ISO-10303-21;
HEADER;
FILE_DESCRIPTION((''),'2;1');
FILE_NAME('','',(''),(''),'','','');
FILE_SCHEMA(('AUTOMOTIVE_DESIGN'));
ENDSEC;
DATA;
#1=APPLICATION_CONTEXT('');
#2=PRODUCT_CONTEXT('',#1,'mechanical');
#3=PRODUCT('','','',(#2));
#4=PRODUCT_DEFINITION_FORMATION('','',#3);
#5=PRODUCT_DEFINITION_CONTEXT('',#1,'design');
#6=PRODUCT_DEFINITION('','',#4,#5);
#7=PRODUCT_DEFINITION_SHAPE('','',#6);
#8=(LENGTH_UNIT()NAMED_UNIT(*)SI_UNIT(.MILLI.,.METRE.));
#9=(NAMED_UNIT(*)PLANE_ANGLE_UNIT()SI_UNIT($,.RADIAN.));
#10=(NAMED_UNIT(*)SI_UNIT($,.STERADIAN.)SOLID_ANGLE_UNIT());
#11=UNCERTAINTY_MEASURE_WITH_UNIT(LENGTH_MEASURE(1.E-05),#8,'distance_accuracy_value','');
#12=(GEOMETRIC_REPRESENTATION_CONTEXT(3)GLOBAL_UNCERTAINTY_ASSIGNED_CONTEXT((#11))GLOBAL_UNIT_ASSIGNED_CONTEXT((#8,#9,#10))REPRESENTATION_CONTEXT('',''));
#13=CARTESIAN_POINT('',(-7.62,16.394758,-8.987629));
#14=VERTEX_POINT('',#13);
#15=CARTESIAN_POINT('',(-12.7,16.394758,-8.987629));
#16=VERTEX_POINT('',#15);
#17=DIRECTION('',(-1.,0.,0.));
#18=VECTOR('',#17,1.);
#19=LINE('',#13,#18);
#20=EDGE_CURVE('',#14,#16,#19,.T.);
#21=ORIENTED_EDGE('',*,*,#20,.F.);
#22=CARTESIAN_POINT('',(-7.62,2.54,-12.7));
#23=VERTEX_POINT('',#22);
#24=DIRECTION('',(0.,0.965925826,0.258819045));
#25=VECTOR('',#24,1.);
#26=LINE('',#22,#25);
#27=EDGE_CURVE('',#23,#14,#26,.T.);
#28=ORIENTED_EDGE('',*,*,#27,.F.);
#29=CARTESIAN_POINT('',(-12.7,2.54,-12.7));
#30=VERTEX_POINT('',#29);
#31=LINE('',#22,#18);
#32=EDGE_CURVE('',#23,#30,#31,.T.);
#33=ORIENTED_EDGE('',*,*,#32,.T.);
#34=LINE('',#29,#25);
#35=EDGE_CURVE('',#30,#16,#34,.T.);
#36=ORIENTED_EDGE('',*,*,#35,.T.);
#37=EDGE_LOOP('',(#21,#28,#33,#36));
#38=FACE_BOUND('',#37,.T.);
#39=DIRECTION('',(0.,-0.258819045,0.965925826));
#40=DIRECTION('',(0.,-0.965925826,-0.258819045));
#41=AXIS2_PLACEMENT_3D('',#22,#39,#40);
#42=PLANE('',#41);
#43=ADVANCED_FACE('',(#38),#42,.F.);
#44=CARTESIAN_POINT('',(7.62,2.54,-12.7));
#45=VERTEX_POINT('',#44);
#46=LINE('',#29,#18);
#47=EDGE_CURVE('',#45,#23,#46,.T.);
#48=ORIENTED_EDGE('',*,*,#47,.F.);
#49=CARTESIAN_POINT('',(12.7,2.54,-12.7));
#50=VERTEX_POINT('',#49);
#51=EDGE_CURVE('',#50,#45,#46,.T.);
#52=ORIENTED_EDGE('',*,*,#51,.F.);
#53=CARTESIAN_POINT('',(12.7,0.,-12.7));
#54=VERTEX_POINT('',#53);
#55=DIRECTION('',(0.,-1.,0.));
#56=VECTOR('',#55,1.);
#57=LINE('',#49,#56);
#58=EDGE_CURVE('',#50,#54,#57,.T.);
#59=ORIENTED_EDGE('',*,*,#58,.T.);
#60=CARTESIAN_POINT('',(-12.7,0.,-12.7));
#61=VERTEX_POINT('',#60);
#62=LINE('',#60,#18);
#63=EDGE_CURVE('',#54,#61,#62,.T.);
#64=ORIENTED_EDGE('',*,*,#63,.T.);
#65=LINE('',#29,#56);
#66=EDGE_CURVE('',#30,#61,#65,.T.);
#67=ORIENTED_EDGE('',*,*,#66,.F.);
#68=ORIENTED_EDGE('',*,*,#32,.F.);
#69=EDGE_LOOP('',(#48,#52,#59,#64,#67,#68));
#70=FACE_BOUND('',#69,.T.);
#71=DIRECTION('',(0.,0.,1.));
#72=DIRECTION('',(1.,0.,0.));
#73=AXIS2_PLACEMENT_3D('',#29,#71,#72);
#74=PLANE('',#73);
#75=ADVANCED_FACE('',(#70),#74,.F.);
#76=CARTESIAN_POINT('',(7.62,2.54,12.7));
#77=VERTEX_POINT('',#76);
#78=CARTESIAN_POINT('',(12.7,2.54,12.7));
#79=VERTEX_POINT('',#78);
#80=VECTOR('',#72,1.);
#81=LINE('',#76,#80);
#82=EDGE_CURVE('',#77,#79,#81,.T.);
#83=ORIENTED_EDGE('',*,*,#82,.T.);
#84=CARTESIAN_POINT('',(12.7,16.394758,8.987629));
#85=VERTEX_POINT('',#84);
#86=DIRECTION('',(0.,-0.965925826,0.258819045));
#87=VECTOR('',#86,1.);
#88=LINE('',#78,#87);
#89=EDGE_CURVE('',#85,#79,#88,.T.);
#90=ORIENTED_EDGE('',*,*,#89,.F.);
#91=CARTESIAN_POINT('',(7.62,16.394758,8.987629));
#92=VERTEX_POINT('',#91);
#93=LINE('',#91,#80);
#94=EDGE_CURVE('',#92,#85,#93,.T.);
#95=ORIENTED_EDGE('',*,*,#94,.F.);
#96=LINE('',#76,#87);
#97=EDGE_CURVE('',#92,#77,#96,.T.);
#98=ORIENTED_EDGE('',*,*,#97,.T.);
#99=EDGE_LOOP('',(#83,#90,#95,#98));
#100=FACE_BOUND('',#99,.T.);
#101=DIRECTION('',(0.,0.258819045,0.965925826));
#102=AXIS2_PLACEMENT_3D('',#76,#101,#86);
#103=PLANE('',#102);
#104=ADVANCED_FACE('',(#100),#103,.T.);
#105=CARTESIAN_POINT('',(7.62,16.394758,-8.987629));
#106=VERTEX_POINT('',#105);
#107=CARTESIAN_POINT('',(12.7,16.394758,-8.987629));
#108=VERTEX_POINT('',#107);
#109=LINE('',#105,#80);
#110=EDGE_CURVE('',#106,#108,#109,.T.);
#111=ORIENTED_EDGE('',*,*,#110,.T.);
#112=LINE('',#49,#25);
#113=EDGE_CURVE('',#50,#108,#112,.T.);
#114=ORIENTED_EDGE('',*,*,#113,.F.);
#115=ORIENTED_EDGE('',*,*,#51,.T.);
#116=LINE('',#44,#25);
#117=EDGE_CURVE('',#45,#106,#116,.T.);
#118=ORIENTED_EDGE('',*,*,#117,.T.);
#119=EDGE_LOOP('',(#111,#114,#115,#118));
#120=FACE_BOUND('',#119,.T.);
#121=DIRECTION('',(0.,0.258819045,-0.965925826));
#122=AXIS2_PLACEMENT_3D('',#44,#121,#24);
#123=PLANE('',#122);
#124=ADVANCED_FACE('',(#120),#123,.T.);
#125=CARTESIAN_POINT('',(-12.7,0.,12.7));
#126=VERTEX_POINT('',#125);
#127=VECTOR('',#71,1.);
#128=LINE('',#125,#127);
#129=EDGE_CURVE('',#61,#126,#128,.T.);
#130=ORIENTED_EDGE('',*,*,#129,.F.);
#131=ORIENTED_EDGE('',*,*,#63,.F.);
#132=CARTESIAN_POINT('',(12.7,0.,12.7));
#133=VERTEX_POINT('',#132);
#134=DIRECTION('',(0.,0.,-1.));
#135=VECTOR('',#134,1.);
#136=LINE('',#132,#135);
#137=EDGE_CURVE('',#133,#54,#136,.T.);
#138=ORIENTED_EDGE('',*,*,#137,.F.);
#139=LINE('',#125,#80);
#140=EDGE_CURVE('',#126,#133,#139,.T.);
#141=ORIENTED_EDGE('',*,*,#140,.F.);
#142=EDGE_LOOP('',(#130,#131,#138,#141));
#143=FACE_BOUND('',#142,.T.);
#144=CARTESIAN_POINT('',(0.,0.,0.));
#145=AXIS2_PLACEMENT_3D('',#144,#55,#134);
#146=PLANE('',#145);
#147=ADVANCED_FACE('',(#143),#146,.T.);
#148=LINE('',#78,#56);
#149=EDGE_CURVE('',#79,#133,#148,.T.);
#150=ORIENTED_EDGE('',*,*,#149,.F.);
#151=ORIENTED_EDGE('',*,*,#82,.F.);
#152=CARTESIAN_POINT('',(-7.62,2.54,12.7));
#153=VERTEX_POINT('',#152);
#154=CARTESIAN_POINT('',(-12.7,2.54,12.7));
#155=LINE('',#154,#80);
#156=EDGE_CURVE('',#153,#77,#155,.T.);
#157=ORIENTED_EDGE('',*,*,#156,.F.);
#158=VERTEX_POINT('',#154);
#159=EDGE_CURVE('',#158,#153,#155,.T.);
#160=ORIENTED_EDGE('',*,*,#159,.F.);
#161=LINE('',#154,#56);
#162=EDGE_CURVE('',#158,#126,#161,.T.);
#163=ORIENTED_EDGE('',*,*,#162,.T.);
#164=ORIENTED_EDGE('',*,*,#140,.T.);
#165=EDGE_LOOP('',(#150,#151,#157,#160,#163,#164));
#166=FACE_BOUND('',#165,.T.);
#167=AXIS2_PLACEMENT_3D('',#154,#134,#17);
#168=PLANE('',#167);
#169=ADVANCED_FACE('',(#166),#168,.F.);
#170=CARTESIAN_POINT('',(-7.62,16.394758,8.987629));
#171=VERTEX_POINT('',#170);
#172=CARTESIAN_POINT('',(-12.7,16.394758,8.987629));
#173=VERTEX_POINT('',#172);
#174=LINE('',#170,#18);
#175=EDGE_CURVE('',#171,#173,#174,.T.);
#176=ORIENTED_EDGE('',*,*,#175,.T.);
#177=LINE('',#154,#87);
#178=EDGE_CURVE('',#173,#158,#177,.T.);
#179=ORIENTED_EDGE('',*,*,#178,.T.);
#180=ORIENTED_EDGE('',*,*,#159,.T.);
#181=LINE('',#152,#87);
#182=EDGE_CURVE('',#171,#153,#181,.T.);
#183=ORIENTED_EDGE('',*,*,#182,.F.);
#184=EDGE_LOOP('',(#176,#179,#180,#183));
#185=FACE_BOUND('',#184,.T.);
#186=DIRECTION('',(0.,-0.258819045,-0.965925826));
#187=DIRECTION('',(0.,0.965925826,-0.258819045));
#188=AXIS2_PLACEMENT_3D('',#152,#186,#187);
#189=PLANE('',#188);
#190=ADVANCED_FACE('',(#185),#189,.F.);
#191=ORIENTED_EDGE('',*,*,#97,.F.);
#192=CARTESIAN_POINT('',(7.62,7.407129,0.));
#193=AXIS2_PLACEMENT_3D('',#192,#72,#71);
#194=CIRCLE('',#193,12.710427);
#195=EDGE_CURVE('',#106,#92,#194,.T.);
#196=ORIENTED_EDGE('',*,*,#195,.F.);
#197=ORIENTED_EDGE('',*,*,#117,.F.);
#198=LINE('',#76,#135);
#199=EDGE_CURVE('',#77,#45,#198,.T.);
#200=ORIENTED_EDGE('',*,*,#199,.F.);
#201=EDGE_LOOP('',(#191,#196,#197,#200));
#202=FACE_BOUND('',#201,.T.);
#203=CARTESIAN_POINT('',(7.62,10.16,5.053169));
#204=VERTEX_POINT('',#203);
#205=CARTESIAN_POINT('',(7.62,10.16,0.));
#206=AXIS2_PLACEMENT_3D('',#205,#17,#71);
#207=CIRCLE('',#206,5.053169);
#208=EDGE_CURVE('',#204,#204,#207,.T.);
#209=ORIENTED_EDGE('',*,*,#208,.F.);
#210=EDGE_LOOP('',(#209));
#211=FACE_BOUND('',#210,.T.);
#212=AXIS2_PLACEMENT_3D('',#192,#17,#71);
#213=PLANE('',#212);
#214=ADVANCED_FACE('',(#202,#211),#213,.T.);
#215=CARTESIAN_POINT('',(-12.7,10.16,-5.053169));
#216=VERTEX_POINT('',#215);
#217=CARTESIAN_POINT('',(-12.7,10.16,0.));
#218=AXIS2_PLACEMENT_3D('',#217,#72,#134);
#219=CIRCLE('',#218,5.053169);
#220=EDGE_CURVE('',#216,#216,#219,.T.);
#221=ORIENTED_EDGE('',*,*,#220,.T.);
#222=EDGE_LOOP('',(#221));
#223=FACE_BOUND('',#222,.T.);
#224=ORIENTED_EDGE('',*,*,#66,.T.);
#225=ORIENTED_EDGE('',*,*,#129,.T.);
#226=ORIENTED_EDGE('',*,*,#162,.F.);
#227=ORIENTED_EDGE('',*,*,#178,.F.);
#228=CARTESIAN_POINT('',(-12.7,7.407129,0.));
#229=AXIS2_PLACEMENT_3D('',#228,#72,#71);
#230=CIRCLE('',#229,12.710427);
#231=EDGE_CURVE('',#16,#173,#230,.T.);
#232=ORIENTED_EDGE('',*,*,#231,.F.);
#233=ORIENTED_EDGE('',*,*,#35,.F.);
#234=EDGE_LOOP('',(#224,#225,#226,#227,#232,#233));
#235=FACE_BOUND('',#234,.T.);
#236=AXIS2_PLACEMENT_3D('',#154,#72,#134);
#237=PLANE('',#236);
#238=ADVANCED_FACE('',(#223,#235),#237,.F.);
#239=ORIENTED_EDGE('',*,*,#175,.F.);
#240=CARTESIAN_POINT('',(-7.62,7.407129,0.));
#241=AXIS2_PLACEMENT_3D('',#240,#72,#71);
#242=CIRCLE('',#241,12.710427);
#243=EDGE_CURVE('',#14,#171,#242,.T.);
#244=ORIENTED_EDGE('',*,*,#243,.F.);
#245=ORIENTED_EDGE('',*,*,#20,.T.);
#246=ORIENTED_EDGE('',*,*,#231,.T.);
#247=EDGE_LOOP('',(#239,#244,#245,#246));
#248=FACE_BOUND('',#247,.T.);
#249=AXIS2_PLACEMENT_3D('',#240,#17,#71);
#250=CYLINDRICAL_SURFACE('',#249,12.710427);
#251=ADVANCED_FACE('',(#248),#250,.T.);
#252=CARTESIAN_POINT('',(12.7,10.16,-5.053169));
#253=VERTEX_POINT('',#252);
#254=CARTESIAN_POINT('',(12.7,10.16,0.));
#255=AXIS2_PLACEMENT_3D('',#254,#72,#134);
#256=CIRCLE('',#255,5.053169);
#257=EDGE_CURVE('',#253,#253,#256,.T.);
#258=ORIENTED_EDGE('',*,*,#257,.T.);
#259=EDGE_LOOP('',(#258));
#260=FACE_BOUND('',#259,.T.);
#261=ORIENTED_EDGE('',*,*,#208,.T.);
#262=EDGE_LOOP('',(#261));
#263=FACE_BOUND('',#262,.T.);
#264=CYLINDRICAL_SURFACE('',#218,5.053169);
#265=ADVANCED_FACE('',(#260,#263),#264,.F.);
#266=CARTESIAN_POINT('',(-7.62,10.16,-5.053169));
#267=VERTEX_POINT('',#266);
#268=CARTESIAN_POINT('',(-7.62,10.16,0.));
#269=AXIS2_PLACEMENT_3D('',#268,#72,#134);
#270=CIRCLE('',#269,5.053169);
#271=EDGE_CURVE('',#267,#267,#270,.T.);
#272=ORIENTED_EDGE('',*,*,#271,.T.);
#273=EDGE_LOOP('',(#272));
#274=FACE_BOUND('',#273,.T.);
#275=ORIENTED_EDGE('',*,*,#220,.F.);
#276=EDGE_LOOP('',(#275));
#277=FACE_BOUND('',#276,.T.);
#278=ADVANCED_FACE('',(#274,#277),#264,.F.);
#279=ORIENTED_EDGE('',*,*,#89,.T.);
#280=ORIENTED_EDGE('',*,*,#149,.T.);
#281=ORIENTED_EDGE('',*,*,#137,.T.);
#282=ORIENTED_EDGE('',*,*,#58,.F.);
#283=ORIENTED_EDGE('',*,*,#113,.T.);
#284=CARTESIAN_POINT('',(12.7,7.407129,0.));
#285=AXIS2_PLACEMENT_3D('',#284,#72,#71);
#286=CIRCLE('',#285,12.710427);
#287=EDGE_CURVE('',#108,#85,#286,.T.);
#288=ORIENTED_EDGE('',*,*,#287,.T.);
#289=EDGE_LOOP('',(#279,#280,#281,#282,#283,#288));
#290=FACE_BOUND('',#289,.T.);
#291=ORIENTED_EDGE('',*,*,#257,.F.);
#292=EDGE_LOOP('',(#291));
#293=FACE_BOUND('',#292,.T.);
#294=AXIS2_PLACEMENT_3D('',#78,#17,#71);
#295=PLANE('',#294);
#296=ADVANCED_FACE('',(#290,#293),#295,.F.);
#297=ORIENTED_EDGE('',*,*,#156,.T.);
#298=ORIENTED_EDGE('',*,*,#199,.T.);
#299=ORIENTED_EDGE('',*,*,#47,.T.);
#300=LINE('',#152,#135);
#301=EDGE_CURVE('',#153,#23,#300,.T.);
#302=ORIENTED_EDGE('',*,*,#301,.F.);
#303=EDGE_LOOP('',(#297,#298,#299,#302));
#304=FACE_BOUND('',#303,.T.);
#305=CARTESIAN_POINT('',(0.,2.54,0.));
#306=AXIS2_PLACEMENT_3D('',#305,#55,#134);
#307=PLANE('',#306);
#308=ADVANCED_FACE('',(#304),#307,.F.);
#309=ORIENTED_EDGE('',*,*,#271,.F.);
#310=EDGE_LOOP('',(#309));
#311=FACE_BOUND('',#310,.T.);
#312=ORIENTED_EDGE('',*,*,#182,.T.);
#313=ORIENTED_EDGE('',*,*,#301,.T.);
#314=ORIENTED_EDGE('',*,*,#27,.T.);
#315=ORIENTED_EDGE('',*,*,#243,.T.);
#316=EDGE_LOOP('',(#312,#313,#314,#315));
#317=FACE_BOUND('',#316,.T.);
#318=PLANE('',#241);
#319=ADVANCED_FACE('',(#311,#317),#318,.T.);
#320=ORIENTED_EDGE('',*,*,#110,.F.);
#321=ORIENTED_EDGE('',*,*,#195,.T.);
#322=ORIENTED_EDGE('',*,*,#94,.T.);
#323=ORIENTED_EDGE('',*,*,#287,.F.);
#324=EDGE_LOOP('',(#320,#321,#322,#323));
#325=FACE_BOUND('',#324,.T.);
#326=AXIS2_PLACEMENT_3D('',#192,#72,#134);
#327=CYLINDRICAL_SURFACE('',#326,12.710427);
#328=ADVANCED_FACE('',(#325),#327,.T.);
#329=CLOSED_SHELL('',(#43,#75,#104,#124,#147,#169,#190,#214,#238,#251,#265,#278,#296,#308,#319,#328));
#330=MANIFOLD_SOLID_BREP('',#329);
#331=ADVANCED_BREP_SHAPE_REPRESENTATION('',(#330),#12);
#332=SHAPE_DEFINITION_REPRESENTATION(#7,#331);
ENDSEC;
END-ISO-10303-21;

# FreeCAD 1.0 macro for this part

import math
import FreeCAD as App
import Part
import Sketcher
Q = App.Units.Quantity


def add_polygon(sketch, points):
    """Adds a closed chain of lines whose ends are joined by coincident constraints."""
    first, n = sketch.GeometryCount, len(points)
    for a, b in zip(points, points[1:] + points[:1]):
        sketch.addGeometry(Part.LineSegment(App.Vector(*a, 0), App.Vector(*b, 0)), False)
    for i in range(n):
        sketch.addConstraint(Sketcher.Constraint("Coincident", first + i, 2, first + (i + 1) % n, 1))

doc = App.newDocument("Part")
body = doc.addObject("PartDesign::Body", "Body")

sketch1 = body.newObject("Sketcher::SketchObject", "Sketch")
sketch1.AttachmentSupport = (doc.getObject("XZ_Plane"), [""])
sketch1.MapMode = "FlatFace"
add_polygon(sketch1, [(-13, -13), (-13, 13), (13, 13), (13, -13)])
sketch1.addConstraint([
    Sketcher.Constraint("Vertical", 0),
    Sketcher.Constraint("Horizontal", 1),
    Sketcher.Constraint("Vertical", 2),
    Sketcher.Constraint("Horizontal", 3),
    Sketcher.Constraint("Symmetric", 0, 2, 2, 2, -1, 1),
    Sketcher.Constraint("Equal", 3, 0),
    Sketcher.Constraint("DistanceX", 1, 1, 1, 2, Q("1 in")),
])
pad1 = body.newObject("PartDesign::Pad", "Pad")
pad1.Profile = sketch1
pad1.Length = Q("0.1 in")
pad1.Reversed = True

sketch2 = body.newObject("Sketcher::SketchObject", "Sketch001")
sketch2.AttachmentSupport = (doc.getObject("YZ_Plane"), [""])
sketch2.MapMode = "FlatFace"
sketch2.AttachmentOffset = App.Placement(App.Vector(0, 0, 0.5 * 25.4), App.Rotation())
sketch2.addGeometry([
    Part.LineSegment(App.Vector(16, 9, 0), App.Vector(3, 13, 0)),
    Part.LineSegment(App.Vector(3, 13, 0), App.Vector(3, -13, 0)),
    Part.LineSegment(App.Vector(3, -13, 0), App.Vector(16, -9, 0)),
    Part.ArcOfCircle(Part.Circle(App.Vector(7, 0, 0), App.Vector(0, 0, 1), 13), math.radians(-45), math.radians(45)),
], False)
sketch2.addConstraint([
    Sketcher.Constraint("Coincident", 0, 2, 1, 1),
    Sketcher.Constraint("Coincident", 1, 2, 2, 1),
    Sketcher.Constraint("Coincident", 2, 2, 3, 1),
    Sketcher.Constraint("Coincident", 3, 2, 0, 1),
    Sketcher.Constraint("Vertical", 1),
    Sketcher.Constraint("Symmetric", 2, 2, 3, 2, -1),
    Sketcher.Constraint("Equal", 0, 2),
    Sketcher.Constraint("DistanceY", 1, 2, 1, 1, Q("1 in")),
    Sketcher.Constraint("Angle", 0, Q("165 deg")),
    Sketcher.Constraint("DistanceX", -1, 1, 0, 2, Q("0.1 in")),
    Sketcher.Constraint("Radius", 3, 12.710427),
    Sketcher.Constraint("Distance", 0, 14.343501),
])
pad2 = body.newObject("PartDesign::Pad", "Pad001")
pad2.Profile = sketch2
pad2.Length = Q("0.2 in")
pad2.Reversed = True
doc.recompute()

mirrored = body.newObject("PartDesign::Mirrored", "Mirrored")
mirrored.Originals = [pad2]
mirrored.MirrorPlane = (doc.getObject("YZ_Plane"), [""])
body.Tip = mirrored

sketch3 = body.newObject("Sketcher::SketchObject", "Sketch002")
sketch3.AttachmentSupport = (doc.getObject("YZ_Plane"), [""])
sketch3.MapMode = "FlatFace"
sketch3.AttachmentOffset = App.Placement(App.Vector(0, 0, 0.5 * 25.4), App.Rotation())
sketch3.addGeometry(Part.Circle(App.Vector(10, 0, 0), App.Vector(0, 0, 1), 5), False)
sketch3.addConstraint([
    Sketcher.Constraint("PointOnObject", 0, 3, -1),
    Sketcher.Constraint("DistanceX", -1, 1, 0, 3, Q("0.4 in")),
    Sketcher.Constraint("Diameter", 0, 10.106339),
])
pocket1 = body.newObject("PartDesign::Pocket", "Pocket")
pocket1.Profile = sketch3
pocket1.Type = "ThroughAll"

doc.recompute()
